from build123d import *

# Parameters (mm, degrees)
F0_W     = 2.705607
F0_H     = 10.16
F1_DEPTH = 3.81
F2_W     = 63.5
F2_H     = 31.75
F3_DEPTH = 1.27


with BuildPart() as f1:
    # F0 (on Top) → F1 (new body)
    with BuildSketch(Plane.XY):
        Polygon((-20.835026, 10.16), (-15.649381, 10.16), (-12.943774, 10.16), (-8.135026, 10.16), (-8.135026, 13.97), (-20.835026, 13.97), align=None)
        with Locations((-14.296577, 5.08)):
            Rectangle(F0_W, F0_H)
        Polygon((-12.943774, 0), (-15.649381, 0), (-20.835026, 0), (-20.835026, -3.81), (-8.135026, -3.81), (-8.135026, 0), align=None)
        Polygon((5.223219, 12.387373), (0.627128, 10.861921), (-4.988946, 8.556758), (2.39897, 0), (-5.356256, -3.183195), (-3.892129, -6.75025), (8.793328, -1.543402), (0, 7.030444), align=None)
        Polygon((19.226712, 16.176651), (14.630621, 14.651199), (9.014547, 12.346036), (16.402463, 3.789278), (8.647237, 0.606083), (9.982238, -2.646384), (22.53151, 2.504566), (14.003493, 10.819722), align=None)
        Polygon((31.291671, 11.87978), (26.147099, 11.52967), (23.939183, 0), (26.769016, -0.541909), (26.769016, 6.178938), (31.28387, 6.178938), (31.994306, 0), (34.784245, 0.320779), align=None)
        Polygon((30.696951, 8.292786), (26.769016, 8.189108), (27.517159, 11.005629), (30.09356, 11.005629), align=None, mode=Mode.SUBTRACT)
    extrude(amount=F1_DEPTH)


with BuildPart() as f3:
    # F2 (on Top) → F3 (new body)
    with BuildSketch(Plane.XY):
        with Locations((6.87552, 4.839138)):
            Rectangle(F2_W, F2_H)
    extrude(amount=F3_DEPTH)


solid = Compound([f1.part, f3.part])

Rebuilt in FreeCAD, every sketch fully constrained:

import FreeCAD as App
import Part
import Sketcher
from FreeCAD import Vector
Q = App.Units.Quantity

doc = App.newDocument("Part")
params = doc.addObject("Spreadsheet::Sheet", "Params")
for row, (alias, value) in enumerate([
    ("sketch1_width", "0.5 in"),
    ("sketch1_width2", "0.5 in"),
    ("sketch1_height", "0.4 in"),
    ("sketch1_height2", "0.4 in"),
    ("sketch1_height3", "0.15 in"),
    ("pad1_length", "0.15 in"),
    ("sketch2_width", "2.5 in"),
    ("sketch2_height", "1.25 in"),
    ("pad2_length", "0.05 in"),
], start=1):
    params.set(f"A{row}", alias)
    params.set(f"B{row}", "=" + value)
    params.setAlias(f"B{row}", alias)

body = doc.addObject("PartDesign::Body", "Body")
body.AllowCompound = True

# Sketch on XY plane
sketch1 = doc.addObject("Sketcher::SketchObject", "Sketch")
body.addObject(sketch1)
sketch1.AttachmentSupport = (doc.XY_Plane, [""])
sketch1.MapMode = "FlatFace"
sketch1.addGeometry([
    Part.LineSegment(Vector(-20.835026, 10.16, 0), Vector(-15.64938, 10.16, 0)),  # 0
    Part.LineSegment(Vector(-15.64938, 10.16, 0), Vector(-15.64938, 0, 0)),  # 1
    Part.LineSegment(Vector(-15.64938, 0, 0), Vector(-20.835026, 0, 0)),  # 2
    Part.LineSegment(Vector(-20.835026, 0, 0), Vector(-20.835026, -3.81, 0)),  # 3
    Part.LineSegment(Vector(-20.835026, -3.81, 0), Vector(-8.135026, -3.81, 0)),  # 4
    Part.LineSegment(Vector(-8.135026, -3.81, 0), Vector(-8.135026, 0, 0)),  # 5
    Part.LineSegment(Vector(-8.135026, 0, 0), Vector(-12.943774, 0, 0)),  # 6
    Part.LineSegment(Vector(-12.943774, 0, 0), Vector(-12.943774, 10.16, 0)),  # 7
    Part.LineSegment(Vector(-12.943774, 10.16, 0), Vector(-8.135026, 10.16, 0)),  # 8
    Part.LineSegment(Vector(-8.135026, 10.16, 0), Vector(-8.135026, 13.97, 0)),  # 9
    Part.LineSegment(Vector(-8.135026, 13.97, 0), Vector(-20.835026, 13.97, 0)),  # 10
    Part.LineSegment(Vector(-20.835026, 13.97, 0), Vector(-20.835026, 10.16, 0)),  # 11
    Part.LineSegment(Vector(5.223219, 12.387373, 0), Vector(0.627128, 10.861921, 0)),  # 12
    Part.LineSegment(Vector(0.627128, 10.861921, 0), Vector(-4.988946, 8.556758, 0)),  # 13
    Part.LineSegment(Vector(-4.988946, 8.556758, 0), Vector(2.39897, 0, 0)),  # 14
    Part.LineSegment(Vector(2.39897, 0, 0), Vector(-5.356256, -3.183195, 0)),  # 15
    Part.LineSegment(Vector(-5.356256, -3.183195, 0), Vector(-3.892129, -6.75025, 0)),  # 16
    Part.LineSegment(Vector(-3.892129, -6.75025, 0), Vector(8.793328, -1.543402, 0)),  # 17
    Part.LineSegment(Vector(8.793328, -1.543402, 0), Vector(0, 7.030444, 0)),  # 18
    Part.LineSegment(Vector(0, 7.030444, 0), Vector(5.223219, 12.387373, 0)),  # 19
    Part.LineSegment(Vector(19.226712, 16.176651, 0), Vector(14.630621, 14.651199, 0)),  # 20
    Part.LineSegment(Vector(14.630621, 14.651199, 0), Vector(9.014547, 12.346036, 0)),  # 21
    Part.LineSegment(Vector(9.014547, 12.346036, 0), Vector(16.402463, 3.789278, 0)),  # 22
    Part.LineSegment(Vector(16.402463, 3.789278, 0), Vector(8.647237, 0.606083, 0)),  # 23
    Part.LineSegment(Vector(8.647237, 0.606083, 0), Vector(9.982238, -2.646384, 0)),  # 24
    Part.LineSegment(Vector(9.982238, -2.646384, 0), Vector(22.53151, 2.504566, 0)),  # 25
    Part.LineSegment(Vector(22.53151, 2.504566, 0), Vector(14.003493, 10.819722, 0)),  # 26
    Part.LineSegment(Vector(14.003493, 10.819722, 0), Vector(19.226712, 16.176651, 0)),  # 27
    Part.LineSegment(Vector(31.291671, 11.87978, 0), Vector(26.147099, 11.52967, 0)),  # 28
    Part.LineSegment(Vector(26.147099, 11.52967, 0), Vector(23.939183, 0, 0)),  # 29
    Part.LineSegment(Vector(23.939183, 0, 0), Vector(26.769016, -0.541909, 0)),  # 30
    Part.LineSegment(Vector(26.769016, -0.541909, 0), Vector(26.769016, 6.178938, 0)),  # 31
    Part.LineSegment(Vector(26.769016, 6.178938, 0), Vector(31.28387, 6.178938, 0)),  # 32
    Part.LineSegment(Vector(31.28387, 6.178938, 0), Vector(31.994306, 0, 0)),  # 33
    Part.LineSegment(Vector(31.994306, 0, 0), Vector(34.784245, 0.320779, 0)),  # 34
    Part.LineSegment(Vector(34.784245, 0.320779, 0), Vector(31.291671, 11.87978, 0)),  # 35
    Part.LineSegment(Vector(30.09356, 11.005629, 0), Vector(30.696951, 8.292786, 0)),  # 36
    Part.LineSegment(Vector(30.696951, 8.292786, 0), Vector(26.769016, 8.189108, 0)),  # 37
    Part.LineSegment(Vector(26.769016, 8.189108, 0), Vector(27.517159, 11.005629, 0)),  # 38
    Part.LineSegment(Vector(27.517159, 11.005629, 0), Vector(30.09356, 11.005629, 0)),  # 39
], False)
sketch1.addConstraint([
    Sketcher.Constraint("Coincident", 0, 2, 1, 1),
    Sketcher.Constraint("Coincident", 1, 2, 2, 1),
    Sketcher.Constraint("Coincident", 2, 2, 3, 1),
    Sketcher.Constraint("Coincident", 3, 2, 4, 1),
    Sketcher.Constraint("Coincident", 4, 2, 5, 1),
    Sketcher.Constraint("Coincident", 5, 2, 6, 1),
    Sketcher.Constraint("Coincident", 6, 2, 7, 1),
    Sketcher.Constraint("Coincident", 7, 2, 8, 1),
    Sketcher.Constraint("Coincident", 8, 2, 9, 1),
    Sketcher.Constraint("Coincident", 9, 2, 10, 1),
    Sketcher.Constraint("Coincident", 10, 2, 11, 1),
    Sketcher.Constraint("Coincident", 11, 2, 0, 1),
    Sketcher.Constraint("Coincident", 12, 2, 13, 1),
    Sketcher.Constraint("Coincident", 13, 2, 14, 1),
    Sketcher.Constraint("Coincident", 14, 2, 15, 1),
    Sketcher.Constraint("Coincident", 15, 2, 16, 1),
    Sketcher.Constraint("Coincident", 16, 2, 17, 1),
    Sketcher.Constraint("Coincident", 17, 2, 18, 1),
    Sketcher.Constraint("Coincident", 18, 2, 19, 1),
    Sketcher.Constraint("Coincident", 19, 2, 12, 1),
    Sketcher.Constraint("Coincident", 20, 2, 21, 1),
    Sketcher.Constraint("Coincident", 21, 2, 22, 1),
    Sketcher.Constraint("Coincident", 22, 2, 23, 1),
    Sketcher.Constraint("Coincident", 23, 2, 24, 1),
    Sketcher.Constraint("Coincident", 24, 2, 25, 1),
    Sketcher.Constraint("Coincident", 25, 2, 26, 1),
    Sketcher.Constraint("Coincident", 26, 2, 27, 1),
    Sketcher.Constraint("Coincident", 27, 2, 20, 1),
    Sketcher.Constraint("Coincident", 28, 2, 29, 1),
    Sketcher.Constraint("Coincident", 29, 2, 30, 1),
    Sketcher.Constraint("Coincident", 30, 2, 31, 1),
    Sketcher.Constraint("Coincident", 31, 2, 32, 1),
    Sketcher.Constraint("Coincident", 32, 2, 33, 1),
    Sketcher.Constraint("Coincident", 33, 2, 34, 1),
    Sketcher.Constraint("Coincident", 34, 2, 35, 1),
    Sketcher.Constraint("Coincident", 35, 2, 28, 1),
    Sketcher.Constraint("Coincident", 36, 2, 37, 1),
    Sketcher.Constraint("Coincident", 37, 2, 38, 1),
    Sketcher.Constraint("Coincident", 38, 2, 39, 1),
    Sketcher.Constraint("Coincident", 39, 2, 36, 1),
    Sketcher.Constraint("Horizontal", 0),
    Sketcher.Constraint("Vertical", 1),
    Sketcher.Constraint("Horizontal", 2),
    Sketcher.Constraint("Vertical", 3),
    Sketcher.Constraint("Horizontal", 4),
    Sketcher.Constraint("Vertical", 5),
    Sketcher.Constraint("Horizontal", 6),
    Sketcher.Constraint("Vertical", 7),
    Sketcher.Constraint("Horizontal", 8),
    Sketcher.Constraint("Vertical", 9),
    Sketcher.Constraint("Horizontal", 10),
    Sketcher.Constraint("Vertical", 11),
    Sketcher.Constraint("Vertical", 31),
    Sketcher.Constraint("Horizontal", 32),
    Sketcher.Constraint("Horizontal", 39),
    Sketcher.Constraint("PointOnObject", 1, 2, -1),
    Sketcher.Constraint("PointOnObject", 5, 2, -1),
    Sketcher.Constraint("PointOnObject", 14, 2, -1),
    Sketcher.Constraint("PointOnObject", 18, 2, -2),
    Sketcher.Constraint("PointOnObject", 29, 2, -1),
    Sketcher.Constraint("PointOnObject", 33, 2, -1),
    Sketcher.Constraint("DistanceX", 4, 1, 4, 2, Q("0.5 in")),
    Sketcher.Constraint("DistanceX", 10, 2, 10, 1, Q("0.5 in")),
    Sketcher.Constraint("DistanceY", 1, 2, 1, 1, Q("0.4 in")),
    Sketcher.Constraint("DistanceY", 7, 1, 7, 2, Q("0.4 in")),
    Sketcher.Constraint("DistanceY", 3, 2, 3, 1, Q("0.15 in")),
    Sketcher.Constraint("DistanceY", 9, 1, 9, 2, Q("0.15 in")),
    Sketcher.Constraint("DistanceX", 39, 1, 39, 2, 2.576401),
    Sketcher.Constraint("DistanceY", 17, 2, -1, 1, 1.543402),
    Sketcher.Constraint("DistanceY", -1, 1, 20, 2, 14.651199),
    Sketcher.Constraint("DistanceX", -1, 1, 28, 2, 26.147099),
    Sketcher.Constraint("DistanceX", 7, 2, 12, 2, 13.570902),
    Sketcher.Constraint("DistanceX", 16, 2, 14, 2, 6.291099),
    Sketcher.Constraint("DistanceX", 12, 2, 17, 2, 8.1662),
    Sketcher.Constraint("DistanceX", 19, 2, 20, 2, 9.407402),
    Sketcher.Constraint("DistanceX", 23, 2, 24, 2, 1.335001),
    Sketcher.Constraint("DistanceX", 27, 2, 25, 2, 3.304798),
    Sketcher.Constraint("DistanceX", 32, 2, 35, 2, 0.007801),
    Sketcher.Constraint("DistanceY", 34, 2, 35, 2, 11.559001),
    Sketcher.Constraint("Distance", 12, 4.842629),
    Sketcher.Constraint("Distance", 14, 11.30484),
    Sketcher.Constraint("Distance", 17, 13.712479),
    Sketcher.Constraint("Distance", 19, 7.481892),
    Sketcher.Constraint("Distance", 20, 4.842629),
    Sketcher.Constraint("Distance", 22, 11.30484),
    Sketcher.Constraint("Distance", 24, 3.515789),
    Sketcher.Constraint("Distance", 25, 13.565269),
    Sketcher.Constraint("Distance", 27, 7.481892),
    Sketcher.Constraint("Distance", 28, 5.156471),
    Sketcher.Constraint("Distance", 34, 2.80832),
    Sketcher.Constraint("Distance", 38, 2.914191),
    Sketcher.Constraint("DistanceX", 0, 1, 0, 2, 5.185645),
    Sketcher.Constraint("DistanceX", 2, 2, 2, 1, 5.185645),
    Sketcher.Constraint("DistanceX", 6, 2, 6, 1, 4.808748),
    Sketcher.Constraint("DistanceX", 32, 1, 32, 2, 4.514854),
    Sketcher.Constraint("DistanceY", 31, 1, 31, 2, 6.720847),
    Sketcher.Constraint("DistanceX", 0, 2, -1, 1, 15.64938),
    Sketcher.Constraint("DistanceY", -1, 1, 12, 2, 10.861921),
    Sketcher.Constraint("DistanceX", -1, 1, 14, 2, 2.39897),
    Sketcher.Constraint("DistanceX", -1, 1, 19, 2, 5.223219),
    Sketcher.Constraint("DistanceX", -1, 1, 24, 2, 9.982238),
    Sketcher.Constraint("DistanceX", -1, 1, 25, 2, 22.53151),
    Sketcher.Constraint("DistanceY", -1, 1, 28, 2, 11.52967),
    Sketcher.Constraint("DistanceY", 30, 2, -1, 1, 0.541909),
    Sketcher.Constraint("DistanceX", -1, 1, 32, 2, 31.28387),
    Sketcher.Constraint("DistanceX", -1, 1, 36, 2, 30.696951),
    Sketcher.Constraint("DistanceX", -1, 1, 38, 2, 27.517159),
    Sketcher.Constraint("DistanceY", -1, 1, 38, 2, 11.005629),
    Sketcher.Constraint("DistanceX", 8, 2, 13, 2, 3.14608),
    Sketcher.Constraint("DistanceX", 4, 2, 15, 2, 2.77877),
    Sketcher.Constraint("DistanceX", 19, 2, 21, 2, 3.791328),
    Sketcher.Constraint("DistanceY", 18, 2, 21, 2, 5.315592),
    Sketcher.Constraint("DistanceY", 17, 2, 22, 2, 5.33268),
    Sketcher.Constraint("DistanceY", 23, 2, 18, 2, 6.424361),
    Sketcher.Constraint("DistanceX", 26, 2, 22, 2, 2.39897),
    Sketcher.Constraint("DistanceX", 22, 2, 29, 2, 7.53672),
    Sketcher.Constraint("DistanceX", 30, 2, 33, 2, 5.22529),
    Sketcher.Constraint("DistanceY", 32, 2, 36, 2, 2.113848),
    Sketcher.Constraint("DistanceY", 31, 2, 37, 2, 2.01017),
    Sketcher.Constraint("Distance", 15, 8.383094),
])
sketch1.setExpression("Constraints[61]", "Params.sketch1_width")
sketch1.setExpression("Constraints[62]", "Params.sketch1_width2")
sketch1.setExpression("Constraints[63]", "Params.sketch1_height")
sketch1.setExpression("Constraints[64]", "Params.sketch1_height2")
sketch1.setExpression("Constraints[65]", "Params.sketch1_height3")
pad1 = doc.addObject("PartDesign::Pad", "Pad")
body.addObject(pad1)
pad1.Profile = sketch1
pad1.setExpression("Length", "Params.pad1_length")
body2 = doc.addObject("PartDesign::Body", "Body001")

# Sketch on XY plane
sketch2 = doc.addObject("Sketcher::SketchObject", "Sketch001")
body2.addObject(sketch2)
sketch2.AttachmentSupport = (doc.getObject("XY_Plane001"), [""])
sketch2.MapMode = "FlatFace"
sketch2.addGeometry([
    Part.LineSegment(Vector(-25, 21, 0), Vector(-25, -11, 0)),
    Part.LineSegment(Vector(-25, -11, 0), Vector(39, -11, 0)),
    Part.LineSegment(Vector(39, -11, 0), Vector(39, 21, 0)),
    Part.LineSegment(Vector(39, 21, 0), Vector(-25, 21, 0)),
], False)
sketch2.addConstraint([
    Sketcher.Constraint("Coincident", 0, 2, 1, 1),
    Sketcher.Constraint("Coincident", 1, 2, 2, 1),
    Sketcher.Constraint("Coincident", 2, 2, 3, 1),
    Sketcher.Constraint("Coincident", 3, 2, 0, 1),
    Sketcher.Constraint("Vertical", 0),
    Sketcher.Constraint("Horizontal", 1),
    Sketcher.Constraint("Vertical", 2),
    Sketcher.Constraint("Horizontal", 3),
    Sketcher.Constraint("DistanceX", 1, 1, 1, 2, Q("2.5 in")),
    Sketcher.Constraint("DistanceY", 0, 2, 0, 1, Q("1.25 in")),
    Sketcher.Constraint("DistanceX", 0, 2, -1, 1, 24.87448),
    Sketcher.Constraint("DistanceY", 0, 2, -1, 1, 11.035862),
])
sketch2.setExpression("Constraints[8]", "Params.sketch2_width")
sketch2.setExpression("Constraints[9]", "Params.sketch2_height")
pad2 = doc.addObject("PartDesign::Pad", "Pad001")
body2.addObject(pad2)
pad2.Profile = sketch2
pad2.setExpression("Length", "Params.pad2_length")

doc.recompute()
